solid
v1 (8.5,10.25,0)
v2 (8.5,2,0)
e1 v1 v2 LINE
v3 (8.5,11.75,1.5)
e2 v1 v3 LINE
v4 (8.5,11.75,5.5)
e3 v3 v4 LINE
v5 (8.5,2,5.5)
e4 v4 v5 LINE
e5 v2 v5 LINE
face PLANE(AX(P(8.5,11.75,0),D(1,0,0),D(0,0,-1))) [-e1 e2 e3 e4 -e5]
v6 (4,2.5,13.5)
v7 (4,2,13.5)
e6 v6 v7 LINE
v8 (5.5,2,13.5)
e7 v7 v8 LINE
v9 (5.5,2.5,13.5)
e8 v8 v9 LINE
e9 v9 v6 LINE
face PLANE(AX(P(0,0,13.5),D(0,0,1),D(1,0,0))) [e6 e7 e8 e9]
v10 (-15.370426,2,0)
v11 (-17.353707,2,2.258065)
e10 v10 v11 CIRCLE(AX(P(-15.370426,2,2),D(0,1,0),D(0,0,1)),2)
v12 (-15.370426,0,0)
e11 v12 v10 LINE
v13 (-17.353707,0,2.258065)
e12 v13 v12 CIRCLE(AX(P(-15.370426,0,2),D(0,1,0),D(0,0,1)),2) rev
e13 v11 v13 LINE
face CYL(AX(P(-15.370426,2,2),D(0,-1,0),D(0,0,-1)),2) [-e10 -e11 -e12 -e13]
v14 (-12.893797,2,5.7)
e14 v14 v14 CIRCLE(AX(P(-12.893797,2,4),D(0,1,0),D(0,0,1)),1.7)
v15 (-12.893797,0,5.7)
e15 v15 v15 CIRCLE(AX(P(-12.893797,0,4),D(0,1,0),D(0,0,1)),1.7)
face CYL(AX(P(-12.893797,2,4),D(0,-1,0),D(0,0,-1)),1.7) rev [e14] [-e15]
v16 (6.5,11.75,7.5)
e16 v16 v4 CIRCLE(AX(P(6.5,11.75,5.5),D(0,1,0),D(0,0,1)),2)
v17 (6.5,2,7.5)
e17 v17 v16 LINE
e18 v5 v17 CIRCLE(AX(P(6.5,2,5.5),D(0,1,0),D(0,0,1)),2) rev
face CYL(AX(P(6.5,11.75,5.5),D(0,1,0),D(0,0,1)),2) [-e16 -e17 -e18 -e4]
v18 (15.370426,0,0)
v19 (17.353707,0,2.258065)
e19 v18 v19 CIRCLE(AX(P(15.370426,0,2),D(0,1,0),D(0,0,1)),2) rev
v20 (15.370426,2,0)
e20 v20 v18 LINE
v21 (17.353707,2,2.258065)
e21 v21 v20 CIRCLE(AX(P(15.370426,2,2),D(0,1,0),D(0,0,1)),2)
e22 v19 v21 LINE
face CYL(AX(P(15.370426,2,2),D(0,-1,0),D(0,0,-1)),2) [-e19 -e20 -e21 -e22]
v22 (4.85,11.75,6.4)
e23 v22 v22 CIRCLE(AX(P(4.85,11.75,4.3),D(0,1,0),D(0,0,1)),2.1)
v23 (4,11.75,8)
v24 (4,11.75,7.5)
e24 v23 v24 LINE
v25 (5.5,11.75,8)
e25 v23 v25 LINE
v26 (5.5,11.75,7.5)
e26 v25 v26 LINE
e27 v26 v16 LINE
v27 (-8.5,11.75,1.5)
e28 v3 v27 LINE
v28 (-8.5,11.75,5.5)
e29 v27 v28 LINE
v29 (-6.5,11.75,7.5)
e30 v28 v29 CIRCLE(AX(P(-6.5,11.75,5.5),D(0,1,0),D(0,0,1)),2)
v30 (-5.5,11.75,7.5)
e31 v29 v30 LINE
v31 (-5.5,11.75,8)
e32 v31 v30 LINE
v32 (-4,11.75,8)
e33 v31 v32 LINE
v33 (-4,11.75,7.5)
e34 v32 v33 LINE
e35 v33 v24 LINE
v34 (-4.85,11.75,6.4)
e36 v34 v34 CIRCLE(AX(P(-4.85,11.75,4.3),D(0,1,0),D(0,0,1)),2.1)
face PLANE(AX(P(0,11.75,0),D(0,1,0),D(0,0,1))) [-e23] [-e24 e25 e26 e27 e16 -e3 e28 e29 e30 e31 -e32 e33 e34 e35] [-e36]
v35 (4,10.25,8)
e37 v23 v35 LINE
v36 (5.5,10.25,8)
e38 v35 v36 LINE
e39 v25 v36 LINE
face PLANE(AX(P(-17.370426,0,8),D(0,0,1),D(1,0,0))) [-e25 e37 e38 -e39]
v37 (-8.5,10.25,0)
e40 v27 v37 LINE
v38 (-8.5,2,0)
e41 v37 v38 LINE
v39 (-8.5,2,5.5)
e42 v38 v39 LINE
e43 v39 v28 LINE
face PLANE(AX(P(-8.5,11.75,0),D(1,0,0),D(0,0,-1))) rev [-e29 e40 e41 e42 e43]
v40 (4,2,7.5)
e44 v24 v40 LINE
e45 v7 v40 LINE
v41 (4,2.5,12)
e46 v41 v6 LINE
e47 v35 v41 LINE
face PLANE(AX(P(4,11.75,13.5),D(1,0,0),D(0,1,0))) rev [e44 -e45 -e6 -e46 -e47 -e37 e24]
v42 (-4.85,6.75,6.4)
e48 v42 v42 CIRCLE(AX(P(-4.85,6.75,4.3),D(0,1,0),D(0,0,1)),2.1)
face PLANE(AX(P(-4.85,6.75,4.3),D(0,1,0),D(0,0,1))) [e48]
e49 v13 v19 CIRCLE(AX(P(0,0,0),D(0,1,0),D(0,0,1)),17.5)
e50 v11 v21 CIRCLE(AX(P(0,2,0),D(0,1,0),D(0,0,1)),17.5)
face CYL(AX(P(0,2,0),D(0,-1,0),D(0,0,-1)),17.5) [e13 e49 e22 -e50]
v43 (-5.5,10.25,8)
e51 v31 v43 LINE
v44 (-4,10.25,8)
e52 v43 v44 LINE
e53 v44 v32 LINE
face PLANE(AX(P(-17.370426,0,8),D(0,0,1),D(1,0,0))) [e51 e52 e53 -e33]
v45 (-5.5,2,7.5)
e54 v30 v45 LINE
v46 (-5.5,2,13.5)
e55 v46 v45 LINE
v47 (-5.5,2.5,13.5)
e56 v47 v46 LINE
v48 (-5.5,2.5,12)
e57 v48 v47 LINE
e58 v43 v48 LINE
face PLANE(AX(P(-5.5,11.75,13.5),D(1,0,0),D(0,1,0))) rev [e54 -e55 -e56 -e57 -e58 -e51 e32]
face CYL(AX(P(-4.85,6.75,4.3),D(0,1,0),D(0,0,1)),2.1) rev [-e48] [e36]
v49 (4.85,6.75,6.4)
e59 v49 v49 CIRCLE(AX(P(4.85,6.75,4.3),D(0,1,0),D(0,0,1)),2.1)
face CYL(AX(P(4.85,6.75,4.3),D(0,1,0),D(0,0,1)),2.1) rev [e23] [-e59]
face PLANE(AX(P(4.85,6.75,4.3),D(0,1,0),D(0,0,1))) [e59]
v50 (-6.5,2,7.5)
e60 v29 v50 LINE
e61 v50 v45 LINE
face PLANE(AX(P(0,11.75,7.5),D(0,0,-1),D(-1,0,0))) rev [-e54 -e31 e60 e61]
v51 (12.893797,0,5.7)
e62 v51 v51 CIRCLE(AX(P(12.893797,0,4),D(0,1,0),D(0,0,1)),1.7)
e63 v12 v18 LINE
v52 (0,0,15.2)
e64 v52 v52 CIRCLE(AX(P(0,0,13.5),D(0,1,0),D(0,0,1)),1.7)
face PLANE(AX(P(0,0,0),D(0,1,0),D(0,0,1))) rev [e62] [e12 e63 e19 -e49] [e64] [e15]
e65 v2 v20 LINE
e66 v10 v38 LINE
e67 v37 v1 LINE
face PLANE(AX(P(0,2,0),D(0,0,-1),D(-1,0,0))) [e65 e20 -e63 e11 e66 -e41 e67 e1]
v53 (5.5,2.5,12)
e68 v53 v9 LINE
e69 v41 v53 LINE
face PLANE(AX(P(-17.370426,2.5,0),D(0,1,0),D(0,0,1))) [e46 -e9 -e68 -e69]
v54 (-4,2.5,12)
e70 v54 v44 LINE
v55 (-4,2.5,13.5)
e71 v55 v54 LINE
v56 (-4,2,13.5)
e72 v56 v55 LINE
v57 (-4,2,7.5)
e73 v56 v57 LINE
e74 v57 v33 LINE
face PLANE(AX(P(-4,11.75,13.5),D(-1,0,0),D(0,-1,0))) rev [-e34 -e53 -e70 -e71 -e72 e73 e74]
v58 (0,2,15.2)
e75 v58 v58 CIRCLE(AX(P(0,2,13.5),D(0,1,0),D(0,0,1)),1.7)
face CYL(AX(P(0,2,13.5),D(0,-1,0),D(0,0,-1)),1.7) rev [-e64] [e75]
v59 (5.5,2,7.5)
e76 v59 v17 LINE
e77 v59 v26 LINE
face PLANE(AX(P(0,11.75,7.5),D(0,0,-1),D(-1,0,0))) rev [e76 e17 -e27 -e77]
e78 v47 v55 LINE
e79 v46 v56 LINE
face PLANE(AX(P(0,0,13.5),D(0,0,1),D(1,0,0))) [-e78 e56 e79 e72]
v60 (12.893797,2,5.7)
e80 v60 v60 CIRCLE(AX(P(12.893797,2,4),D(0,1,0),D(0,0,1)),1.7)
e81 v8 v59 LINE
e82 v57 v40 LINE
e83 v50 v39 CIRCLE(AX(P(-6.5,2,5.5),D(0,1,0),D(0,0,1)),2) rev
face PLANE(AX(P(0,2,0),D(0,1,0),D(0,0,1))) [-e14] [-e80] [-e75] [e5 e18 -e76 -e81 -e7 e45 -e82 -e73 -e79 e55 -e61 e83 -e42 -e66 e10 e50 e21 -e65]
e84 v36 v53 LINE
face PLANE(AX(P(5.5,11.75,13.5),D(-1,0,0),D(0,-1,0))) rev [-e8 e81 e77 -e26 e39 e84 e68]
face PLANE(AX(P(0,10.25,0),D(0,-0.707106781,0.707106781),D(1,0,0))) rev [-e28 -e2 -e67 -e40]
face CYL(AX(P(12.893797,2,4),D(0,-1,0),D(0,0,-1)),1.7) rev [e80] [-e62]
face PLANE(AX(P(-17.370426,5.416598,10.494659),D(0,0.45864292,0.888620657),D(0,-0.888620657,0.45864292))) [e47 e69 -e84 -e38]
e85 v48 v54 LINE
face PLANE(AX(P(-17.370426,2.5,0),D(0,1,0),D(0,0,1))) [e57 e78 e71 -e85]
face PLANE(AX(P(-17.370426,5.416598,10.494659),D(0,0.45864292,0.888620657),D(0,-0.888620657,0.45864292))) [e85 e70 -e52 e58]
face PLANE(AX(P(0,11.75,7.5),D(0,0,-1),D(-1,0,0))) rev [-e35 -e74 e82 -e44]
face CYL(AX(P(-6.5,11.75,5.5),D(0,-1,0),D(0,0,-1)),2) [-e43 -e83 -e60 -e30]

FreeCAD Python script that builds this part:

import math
import FreeCAD as App
import Part
import Sketcher
from FreeCAD import Vector
Q = App.Units.Quantity


def edges_at(feature, points):
    """Names of the edges that pass closest to the given points."""
    edges = feature.Shape.Edges
    near = lambda p: min(range(len(edges)), key=lambda i: edges[i].distToShape(Part.Vertex(*p))[0])
    return sorted({f"Edge{near(p) + 1}" for p in points})


def add_polygon(sketch, points):
    """Adds a closed chain of lines whose ends are joined by coincident constraints."""
    first, n = sketch.GeometryCount, len(points)
    for a, b in zip(points, points[1:] + points[:1]):
        sketch.addGeometry(Part.LineSegment(App.Vector(*a, 0), App.Vector(*b, 0)), False)
    for i in range(n):
        sketch.addConstraint(Sketcher.Constraint("Coincident", first + i, 2, first + (i + 1) % n, 1))

doc = App.newDocument("Part")
body = doc.addObject("PartDesign::Body", "Body")

sketch1 = body.newObject("Sketcher::SketchObject", "Sketch")
sketch1.AttachmentSupport = (doc.getObject("XZ_Plane"), [""])
sketch1.MapMode = "FlatFace"
sketch1.addGeometry(Part.LineSegment(Vector(8.5, 0, 0), Vector(8.5, 7.5, 0)), False)
sketch1.addGeometry(Part.LineSegment(Vector(8.5, 7.5, 0), Vector(-8.5, 7.5, 0)), False)
sketch1.addGeometry(Part.LineSegment(Vector(-8.5, 7.5, 0), Vector(-8.5, 0, 0)), False)
sketch1.addGeometry(Part.LineSegment(Vector(-8.5, 0, 0), Vector(-17.5, 0, 0)), False)
sketch1.addGeometry(Part.ArcOfCircle(Part.Circle(Vector(0, 0, 0), Vector(0, 0, 1), 17.5), math.radians(0), math.radians(180)), False)
sketch1.addGeometry(Part.LineSegment(Vector(17.5, 0, 0), Vector(8.5, 0, 0)), False)
sketch1.addGeometry(Part.ArcOfCircle(Part.Circle(Vector(-12.89, 4, 0), Vector(0, 0, 1), 1.7), math.radians(-104), math.radians(0)), False)
sketch1.addGeometry(Part.ArcOfCircle(Part.Circle(Vector(-12.89, 4, 0), Vector(0, 0, 1), 1.7), math.radians(0), math.radians(69)), False)
sketch1.addGeometry(Part.ArcOfCircle(Part.Circle(Vector(-12.89, 4, 0), Vector(0, 0, 1), 1.7), math.radians(69), math.radians(256)), False)
sketch1.addGeometry(Part.ArcOfCircle(Part.Circle(Vector(0, 13.5, 0), Vector(0, 0, 1), 1.7), math.radians(-176), math.radians(-4)), False)
sketch1.addGeometry(Part.ArcOfCircle(Part.Circle(Vector(0, 13.5, 0), Vector(0, 0, 1), 1.7), math.radians(-3.61), math.radians(0)), False)
sketch1.addGeometry(Part.ArcOfCircle(Part.Circle(Vector(0, 13.5, 0), Vector(0, 0, 1), 1.7), math.radians(0), math.radians(184)), False)
sketch1.addGeometry(Part.ArcOfCircle(Part.Circle(Vector(12.89, 4, 0), Vector(0, 0, 1), 1.7), math.radians(111), math.radians(284)), False)
sketch1.addGeometry(Part.ArcOfCircle(Part.Circle(Vector(12.89, 4, 0), Vector(0, 0, 1), 1.7), math.radians(-76), math.radians(0)), False)
sketch1.addGeometry(Part.ArcOfCircle(Part.Circle(Vector(12.89, 4, 0), Vector(0, 0, 1), 1.7), math.radians(0), math.radians(111)), False)
sketch1.addConstraint(Sketcher.Constraint("Coincident", 0, 2, 1, 1))
sketch1.addConstraint(Sketcher.Constraint("Coincident", 1, 2, 2, 1))
sketch1.addConstraint(Sketcher.Constraint("Coincident", 2, 2, 3, 1))
sketch1.addConstraint(Sketcher.Constraint("Coincident", 3, 2, 4, 2))
sketch1.addConstraint(Sketcher.Constraint("Coincident", 4, 1, 5, 1))
sketch1.addConstraint(Sketcher.Constraint("Coincident", 5, 2, 0, 1))
sketch1.addConstraint(Sketcher.Constraint("Tangent", 6, 2, 7, 1))
sketch1.addConstraint(Sketcher.Constraint("Tangent", 7, 2, 8, 1))
sketch1.addConstraint(Sketcher.Constraint("Tangent", 8, 2, 6, 1))
sketch1.addConstraint(Sketcher.Constraint("Tangent", 9, 2, 10, 1))
sketch1.addConstraint(Sketcher.Constraint("Tangent", 10, 2, 11, 1))
sketch1.addConstraint(Sketcher.Constraint("Tangent", 11, 2, 9, 1))
sketch1.addConstraint(Sketcher.Constraint("Tangent", 12, 2, 13, 1))
sketch1.addConstraint(Sketcher.Constraint("Tangent", 13, 2, 14, 1))
sketch1.addConstraint(Sketcher.Constraint("Tangent", 14, 2, 12, 1))
sketch1.addConstraint(Sketcher.Constraint("Vertical", 0))
sketch1.addConstraint(Sketcher.Constraint("Horizontal", 1))
sketch1.addConstraint(Sketcher.Constraint("Vertical", 2))
sketch1.addConstraint(Sketcher.Constraint("Horizontal", 3))
sketch1.addConstraint(Sketcher.Constraint("Horizontal", 5))
sketch1.addConstraint(Sketcher.Constraint("Coincident", 4, 3, -1, 1))
sketch1.addConstraint(Sketcher.Constraint("Equal", 8, 9))
sketch1.addConstraint(Sketcher.Constraint("Equal", 11, 12))
sketch1.addConstraint(Sketcher.Constraint("Symmetric", 2, 2, 5, 2, -1, 1))
sketch1.addConstraint(Sketcher.Constraint("Symmetric", 6, 3, 12, 3, -2))
sketch1.addConstraint(Sketcher.Constraint("Symmetric", 9, 2, 11, 2, -2))
sketch1.addConstraint(Sketcher.Constraint("PointOnObject", 2, 2, -1))
sketch1.addConstraint(Sketcher.Constraint("Horizontal", 14, 3, 6, 2))
sketch1.addConstraint(Sketcher.Constraint("Horizontal", 11, 3, 10, 2))
sketch1.addConstraint(Sketcher.Constraint("Horizontal", 8, 2, 12, 2))
sketch1.addConstraint(Sketcher.Constraint("Horizontal", 6, 2, 13, 2))
sketch1.addConstraint(Sketcher.Constraint("Horizontal", 7, 2, 14, 2))
sketch1.addConstraint(Sketcher.Constraint("Radius", 4, Q("17.5 mm")))
sketch1.addConstraint(Sketcher.Constraint("Radius", 6, Q("1.7 mm")))
sketch1.addConstraint(Sketcher.Constraint("DistanceX", 1, 2, 1, 1, Q("17 mm")))
sketch1.addConstraint(Sketcher.Constraint("DistanceY", 0, 1, 0, 2, Q("7.5 mm")))
sketch1.addConstraint(Sketcher.Constraint("DistanceY", -1, 1, 6, 3, Q("4 mm")))
sketch1.addConstraint(Sketcher.Constraint("DistanceY", 0, 2, 10, 3, Q("6 mm")))
sketch1.addConstraint(Sketcher.Constraint("DistanceX", 8, 2, -1, 1, Q("13.294271 mm")))
sketch1.addConstraint(Sketcher.Constraint("DistanceX", 8, 2, 7, 2, Q("1.005409 mm")))
sketch1.addConstraint(Sketcher.Constraint("DistanceX", 6, 3, -1, 1, Q("12.893797 mm")))
sketch1.addConstraint(Sketcher.Constraint("DistanceX", -1, 1, 9, 2, Q("1.696627 mm")))
pad1 = body.newObject("PartDesign::Pad", "Pad")
pad1.Profile = sketch1
pad1.Length = 2
pad1.Reversed = True

sketch2 = body.newObject("Sketcher::SketchObject", "Sketch001")
sketch2.AttachmentSupport = (doc.getObject("XZ_Plane"), [""])
sketch2.MapMode = "FlatFace"
add_polygon(sketch2, [(-8, 0), (-8, 8), (8, 8), (8, 0)])
sketch2.addConstraint(Sketcher.Constraint("Vertical", 0))
sketch2.addConstraint(Sketcher.Constraint("Horizontal", 1))
sketch2.addConstraint(Sketcher.Constraint("Vertical", 2))
sketch2.addConstraint(Sketcher.Constraint("Horizontal", 3))
sketch2.addConstraint(Sketcher.Constraint("Symmetric", 2, 2, 3, 2, -1, 1))
sketch2.addConstraint(Sketcher.Constraint("DistanceX", 1, 1, 1, 2, Q("17 mm")))
sketch2.addConstraint(Sketcher.Constraint("DistanceY", 0, 1, 0, 2, Q("7.5 mm")))
pad2 = body.newObject("PartDesign::Pad", "Pad001")
pad2.Profile = sketch2
pad2.Length = 11.75
pad2.Reversed = True
doc.recompute()

fillet = body.newObject("PartDesign::Fillet", "Fillet")
fillet.Base = (pad2, edges_at(pad2, [
    (-17.5, 1, 0),
    (17.5, 1, 0),
    (8.5, 6.875, 7.5),
    (-8.5, 6.875, 7.5),
]))
fillet.Radius = 2
doc.recompute()

chamfer = body.newObject("PartDesign::Chamfer", "Chamfer")
chamfer.Base = (fillet, edges_at(fillet, [(0, 11.75, 0)]))
chamfer.Size = 1.5

sketch3 = body.newObject("Sketcher::SketchObject", "Sketch002")
sketch3.AttachmentSupport = (doc.getObject("XY_Plane"), [""])
sketch3.MapMode = "FlatFace"
sketch3.AttachmentOffset = App.Placement(Vector(0, 0, 7.5), App.Rotation())
add_polygon(sketch3, [(-5.5, 11.8), (-5.5, 2), (-4, 2), (-4, 11.8)])
add_polygon(sketch3, [(4, 11.8), (4, 2), (5.5, 2), (5.5, 11.8)])
sketch3.addConstraint(Sketcher.Constraint("Vertical", 0))
sketch3.addConstraint(Sketcher.Constraint("Horizontal", 1))
sketch3.addConstraint(Sketcher.Constraint("Vertical", 2))
sketch3.addConstraint(Sketcher.Constraint("Horizontal", 3))
sketch3.addConstraint(Sketcher.Constraint("Vertical", 4))
sketch3.addConstraint(Sketcher.Constraint("Horizontal", 5))
sketch3.addConstraint(Sketcher.Constraint("Vertical", 6))
sketch3.addConstraint(Sketcher.Constraint("Horizontal", 7))
sketch3.addConstraint(Sketcher.Constraint("Symmetric", 1, 2, 4, 2, -2))
sketch3.addConstraint(Sketcher.Constraint("Symmetric", 3, 2, 6, 2, -2))
sketch3.addConstraint(Sketcher.Constraint("DistanceX", 1, 1, 1, 2, Q("1.5 mm")))
sketch3.addConstraint(Sketcher.Constraint("DistanceY", -1, 1, 0, 2, Q("2 mm")))
sketch3.addConstraint(Sketcher.Constraint("DistanceX", 1, 2, -1, 1, Q("4 mm")))
sketch3.addConstraint(Sketcher.Constraint("DistanceY", 0, 2, 0, 1, Q("9.75 mm")))
pad3 = body.newObject("PartDesign::Pad", "Pad002")
pad3.Profile = sketch3
pad3.Length = 6

sketch4 = body.newObject("Sketcher::SketchObject", "Sketch003")
sketch4.AttachmentSupport = (doc.getObject("YZ_Plane"), [""])
sketch4.MapMode = "FlatFace"
sketch4.AttachmentOffset = App.Placement(Vector(0, 0, 5.5), App.Rotation())
add_polygon(sketch4, [(10.2, 8), (11.8, 8), (11.8, 13.5), (2.5, 13.5), (2.5, 12)])
sketch4.addConstraint(Sketcher.Constraint("Horizontal", 0))
sketch4.addConstraint(Sketcher.Constraint("Vertical", 1))
sketch4.addConstraint(Sketcher.Constraint("Horizontal", 2))
sketch4.addConstraint(Sketcher.Constraint("Vertical", 3))
sketch4.addConstraint(Sketcher.Constraint("Equal", 0, 3))
sketch4.addConstraint(Sketcher.Constraint("DistanceX", 0, 1, 0, 2, Q("1.5 mm")))
sketch4.addConstraint(Sketcher.Constraint("DistanceY", 1, 1, 1, 2, Q("5.5 mm")))
sketch4.addConstraint(Sketcher.Constraint("DistanceY", -1, 1, 0, 2, Q("8 mm")))
sketch4.addConstraint(Sketcher.Constraint("DistanceX", 2, 2, 2, 1, Q("9.25 mm")))
sketch4.addConstraint(Sketcher.Constraint("DistanceX", -1, 1, 2, 2, Q("2.5 mm")))
pocket1 = body.newObject("PartDesign::Pocket", "Pocket")
pocket1.Profile = sketch4
pocket1.Type = "ThroughAll"

sketch5 = body.newObject("Sketcher::SketchObject", "Sketch004")
sketch5.AttachmentSupport = (doc.getObject("XZ_Plane"), [""])
sketch5.MapMode = "FlatFace"
sketch5.AttachmentOffset = App.Placement(Vector(0, 0, -11.75), App.Rotation())
sketch5.addGeometry(Part.Circle(Vector(-4.8, 4.3, 0), Vector(0, 0, 1), 2.1), False)
sketch5.addGeometry(Part.Circle(Vector(4.8, 4.3, 0), Vector(0, 0, 1), 2.1), False)
sketch5.addConstraint(Sketcher.Constraint("Equal", 0, 1))
sketch5.addConstraint(Sketcher.Constraint("Symmetric", 0, 3, 1, 3, -2))
sketch5.addConstraint(Sketcher.Constraint("Diameter", 0, Q("4.2 mm")))
sketch5.addConstraint(Sketcher.Constraint("DistanceY", -1, 1, 0, 3, Q("4.3 mm")))
sketch5.addConstraint(Sketcher.Constraint("DistanceX", 0, 3, 1, 3, Q("9.7 mm")))
pocket2 = body.newObject("PartDesign::Pocket", "Pocket001")
pocket2.Profile = sketch5
pocket2.Length = 5
pocket2.Reversed = True

doc.recompute()
